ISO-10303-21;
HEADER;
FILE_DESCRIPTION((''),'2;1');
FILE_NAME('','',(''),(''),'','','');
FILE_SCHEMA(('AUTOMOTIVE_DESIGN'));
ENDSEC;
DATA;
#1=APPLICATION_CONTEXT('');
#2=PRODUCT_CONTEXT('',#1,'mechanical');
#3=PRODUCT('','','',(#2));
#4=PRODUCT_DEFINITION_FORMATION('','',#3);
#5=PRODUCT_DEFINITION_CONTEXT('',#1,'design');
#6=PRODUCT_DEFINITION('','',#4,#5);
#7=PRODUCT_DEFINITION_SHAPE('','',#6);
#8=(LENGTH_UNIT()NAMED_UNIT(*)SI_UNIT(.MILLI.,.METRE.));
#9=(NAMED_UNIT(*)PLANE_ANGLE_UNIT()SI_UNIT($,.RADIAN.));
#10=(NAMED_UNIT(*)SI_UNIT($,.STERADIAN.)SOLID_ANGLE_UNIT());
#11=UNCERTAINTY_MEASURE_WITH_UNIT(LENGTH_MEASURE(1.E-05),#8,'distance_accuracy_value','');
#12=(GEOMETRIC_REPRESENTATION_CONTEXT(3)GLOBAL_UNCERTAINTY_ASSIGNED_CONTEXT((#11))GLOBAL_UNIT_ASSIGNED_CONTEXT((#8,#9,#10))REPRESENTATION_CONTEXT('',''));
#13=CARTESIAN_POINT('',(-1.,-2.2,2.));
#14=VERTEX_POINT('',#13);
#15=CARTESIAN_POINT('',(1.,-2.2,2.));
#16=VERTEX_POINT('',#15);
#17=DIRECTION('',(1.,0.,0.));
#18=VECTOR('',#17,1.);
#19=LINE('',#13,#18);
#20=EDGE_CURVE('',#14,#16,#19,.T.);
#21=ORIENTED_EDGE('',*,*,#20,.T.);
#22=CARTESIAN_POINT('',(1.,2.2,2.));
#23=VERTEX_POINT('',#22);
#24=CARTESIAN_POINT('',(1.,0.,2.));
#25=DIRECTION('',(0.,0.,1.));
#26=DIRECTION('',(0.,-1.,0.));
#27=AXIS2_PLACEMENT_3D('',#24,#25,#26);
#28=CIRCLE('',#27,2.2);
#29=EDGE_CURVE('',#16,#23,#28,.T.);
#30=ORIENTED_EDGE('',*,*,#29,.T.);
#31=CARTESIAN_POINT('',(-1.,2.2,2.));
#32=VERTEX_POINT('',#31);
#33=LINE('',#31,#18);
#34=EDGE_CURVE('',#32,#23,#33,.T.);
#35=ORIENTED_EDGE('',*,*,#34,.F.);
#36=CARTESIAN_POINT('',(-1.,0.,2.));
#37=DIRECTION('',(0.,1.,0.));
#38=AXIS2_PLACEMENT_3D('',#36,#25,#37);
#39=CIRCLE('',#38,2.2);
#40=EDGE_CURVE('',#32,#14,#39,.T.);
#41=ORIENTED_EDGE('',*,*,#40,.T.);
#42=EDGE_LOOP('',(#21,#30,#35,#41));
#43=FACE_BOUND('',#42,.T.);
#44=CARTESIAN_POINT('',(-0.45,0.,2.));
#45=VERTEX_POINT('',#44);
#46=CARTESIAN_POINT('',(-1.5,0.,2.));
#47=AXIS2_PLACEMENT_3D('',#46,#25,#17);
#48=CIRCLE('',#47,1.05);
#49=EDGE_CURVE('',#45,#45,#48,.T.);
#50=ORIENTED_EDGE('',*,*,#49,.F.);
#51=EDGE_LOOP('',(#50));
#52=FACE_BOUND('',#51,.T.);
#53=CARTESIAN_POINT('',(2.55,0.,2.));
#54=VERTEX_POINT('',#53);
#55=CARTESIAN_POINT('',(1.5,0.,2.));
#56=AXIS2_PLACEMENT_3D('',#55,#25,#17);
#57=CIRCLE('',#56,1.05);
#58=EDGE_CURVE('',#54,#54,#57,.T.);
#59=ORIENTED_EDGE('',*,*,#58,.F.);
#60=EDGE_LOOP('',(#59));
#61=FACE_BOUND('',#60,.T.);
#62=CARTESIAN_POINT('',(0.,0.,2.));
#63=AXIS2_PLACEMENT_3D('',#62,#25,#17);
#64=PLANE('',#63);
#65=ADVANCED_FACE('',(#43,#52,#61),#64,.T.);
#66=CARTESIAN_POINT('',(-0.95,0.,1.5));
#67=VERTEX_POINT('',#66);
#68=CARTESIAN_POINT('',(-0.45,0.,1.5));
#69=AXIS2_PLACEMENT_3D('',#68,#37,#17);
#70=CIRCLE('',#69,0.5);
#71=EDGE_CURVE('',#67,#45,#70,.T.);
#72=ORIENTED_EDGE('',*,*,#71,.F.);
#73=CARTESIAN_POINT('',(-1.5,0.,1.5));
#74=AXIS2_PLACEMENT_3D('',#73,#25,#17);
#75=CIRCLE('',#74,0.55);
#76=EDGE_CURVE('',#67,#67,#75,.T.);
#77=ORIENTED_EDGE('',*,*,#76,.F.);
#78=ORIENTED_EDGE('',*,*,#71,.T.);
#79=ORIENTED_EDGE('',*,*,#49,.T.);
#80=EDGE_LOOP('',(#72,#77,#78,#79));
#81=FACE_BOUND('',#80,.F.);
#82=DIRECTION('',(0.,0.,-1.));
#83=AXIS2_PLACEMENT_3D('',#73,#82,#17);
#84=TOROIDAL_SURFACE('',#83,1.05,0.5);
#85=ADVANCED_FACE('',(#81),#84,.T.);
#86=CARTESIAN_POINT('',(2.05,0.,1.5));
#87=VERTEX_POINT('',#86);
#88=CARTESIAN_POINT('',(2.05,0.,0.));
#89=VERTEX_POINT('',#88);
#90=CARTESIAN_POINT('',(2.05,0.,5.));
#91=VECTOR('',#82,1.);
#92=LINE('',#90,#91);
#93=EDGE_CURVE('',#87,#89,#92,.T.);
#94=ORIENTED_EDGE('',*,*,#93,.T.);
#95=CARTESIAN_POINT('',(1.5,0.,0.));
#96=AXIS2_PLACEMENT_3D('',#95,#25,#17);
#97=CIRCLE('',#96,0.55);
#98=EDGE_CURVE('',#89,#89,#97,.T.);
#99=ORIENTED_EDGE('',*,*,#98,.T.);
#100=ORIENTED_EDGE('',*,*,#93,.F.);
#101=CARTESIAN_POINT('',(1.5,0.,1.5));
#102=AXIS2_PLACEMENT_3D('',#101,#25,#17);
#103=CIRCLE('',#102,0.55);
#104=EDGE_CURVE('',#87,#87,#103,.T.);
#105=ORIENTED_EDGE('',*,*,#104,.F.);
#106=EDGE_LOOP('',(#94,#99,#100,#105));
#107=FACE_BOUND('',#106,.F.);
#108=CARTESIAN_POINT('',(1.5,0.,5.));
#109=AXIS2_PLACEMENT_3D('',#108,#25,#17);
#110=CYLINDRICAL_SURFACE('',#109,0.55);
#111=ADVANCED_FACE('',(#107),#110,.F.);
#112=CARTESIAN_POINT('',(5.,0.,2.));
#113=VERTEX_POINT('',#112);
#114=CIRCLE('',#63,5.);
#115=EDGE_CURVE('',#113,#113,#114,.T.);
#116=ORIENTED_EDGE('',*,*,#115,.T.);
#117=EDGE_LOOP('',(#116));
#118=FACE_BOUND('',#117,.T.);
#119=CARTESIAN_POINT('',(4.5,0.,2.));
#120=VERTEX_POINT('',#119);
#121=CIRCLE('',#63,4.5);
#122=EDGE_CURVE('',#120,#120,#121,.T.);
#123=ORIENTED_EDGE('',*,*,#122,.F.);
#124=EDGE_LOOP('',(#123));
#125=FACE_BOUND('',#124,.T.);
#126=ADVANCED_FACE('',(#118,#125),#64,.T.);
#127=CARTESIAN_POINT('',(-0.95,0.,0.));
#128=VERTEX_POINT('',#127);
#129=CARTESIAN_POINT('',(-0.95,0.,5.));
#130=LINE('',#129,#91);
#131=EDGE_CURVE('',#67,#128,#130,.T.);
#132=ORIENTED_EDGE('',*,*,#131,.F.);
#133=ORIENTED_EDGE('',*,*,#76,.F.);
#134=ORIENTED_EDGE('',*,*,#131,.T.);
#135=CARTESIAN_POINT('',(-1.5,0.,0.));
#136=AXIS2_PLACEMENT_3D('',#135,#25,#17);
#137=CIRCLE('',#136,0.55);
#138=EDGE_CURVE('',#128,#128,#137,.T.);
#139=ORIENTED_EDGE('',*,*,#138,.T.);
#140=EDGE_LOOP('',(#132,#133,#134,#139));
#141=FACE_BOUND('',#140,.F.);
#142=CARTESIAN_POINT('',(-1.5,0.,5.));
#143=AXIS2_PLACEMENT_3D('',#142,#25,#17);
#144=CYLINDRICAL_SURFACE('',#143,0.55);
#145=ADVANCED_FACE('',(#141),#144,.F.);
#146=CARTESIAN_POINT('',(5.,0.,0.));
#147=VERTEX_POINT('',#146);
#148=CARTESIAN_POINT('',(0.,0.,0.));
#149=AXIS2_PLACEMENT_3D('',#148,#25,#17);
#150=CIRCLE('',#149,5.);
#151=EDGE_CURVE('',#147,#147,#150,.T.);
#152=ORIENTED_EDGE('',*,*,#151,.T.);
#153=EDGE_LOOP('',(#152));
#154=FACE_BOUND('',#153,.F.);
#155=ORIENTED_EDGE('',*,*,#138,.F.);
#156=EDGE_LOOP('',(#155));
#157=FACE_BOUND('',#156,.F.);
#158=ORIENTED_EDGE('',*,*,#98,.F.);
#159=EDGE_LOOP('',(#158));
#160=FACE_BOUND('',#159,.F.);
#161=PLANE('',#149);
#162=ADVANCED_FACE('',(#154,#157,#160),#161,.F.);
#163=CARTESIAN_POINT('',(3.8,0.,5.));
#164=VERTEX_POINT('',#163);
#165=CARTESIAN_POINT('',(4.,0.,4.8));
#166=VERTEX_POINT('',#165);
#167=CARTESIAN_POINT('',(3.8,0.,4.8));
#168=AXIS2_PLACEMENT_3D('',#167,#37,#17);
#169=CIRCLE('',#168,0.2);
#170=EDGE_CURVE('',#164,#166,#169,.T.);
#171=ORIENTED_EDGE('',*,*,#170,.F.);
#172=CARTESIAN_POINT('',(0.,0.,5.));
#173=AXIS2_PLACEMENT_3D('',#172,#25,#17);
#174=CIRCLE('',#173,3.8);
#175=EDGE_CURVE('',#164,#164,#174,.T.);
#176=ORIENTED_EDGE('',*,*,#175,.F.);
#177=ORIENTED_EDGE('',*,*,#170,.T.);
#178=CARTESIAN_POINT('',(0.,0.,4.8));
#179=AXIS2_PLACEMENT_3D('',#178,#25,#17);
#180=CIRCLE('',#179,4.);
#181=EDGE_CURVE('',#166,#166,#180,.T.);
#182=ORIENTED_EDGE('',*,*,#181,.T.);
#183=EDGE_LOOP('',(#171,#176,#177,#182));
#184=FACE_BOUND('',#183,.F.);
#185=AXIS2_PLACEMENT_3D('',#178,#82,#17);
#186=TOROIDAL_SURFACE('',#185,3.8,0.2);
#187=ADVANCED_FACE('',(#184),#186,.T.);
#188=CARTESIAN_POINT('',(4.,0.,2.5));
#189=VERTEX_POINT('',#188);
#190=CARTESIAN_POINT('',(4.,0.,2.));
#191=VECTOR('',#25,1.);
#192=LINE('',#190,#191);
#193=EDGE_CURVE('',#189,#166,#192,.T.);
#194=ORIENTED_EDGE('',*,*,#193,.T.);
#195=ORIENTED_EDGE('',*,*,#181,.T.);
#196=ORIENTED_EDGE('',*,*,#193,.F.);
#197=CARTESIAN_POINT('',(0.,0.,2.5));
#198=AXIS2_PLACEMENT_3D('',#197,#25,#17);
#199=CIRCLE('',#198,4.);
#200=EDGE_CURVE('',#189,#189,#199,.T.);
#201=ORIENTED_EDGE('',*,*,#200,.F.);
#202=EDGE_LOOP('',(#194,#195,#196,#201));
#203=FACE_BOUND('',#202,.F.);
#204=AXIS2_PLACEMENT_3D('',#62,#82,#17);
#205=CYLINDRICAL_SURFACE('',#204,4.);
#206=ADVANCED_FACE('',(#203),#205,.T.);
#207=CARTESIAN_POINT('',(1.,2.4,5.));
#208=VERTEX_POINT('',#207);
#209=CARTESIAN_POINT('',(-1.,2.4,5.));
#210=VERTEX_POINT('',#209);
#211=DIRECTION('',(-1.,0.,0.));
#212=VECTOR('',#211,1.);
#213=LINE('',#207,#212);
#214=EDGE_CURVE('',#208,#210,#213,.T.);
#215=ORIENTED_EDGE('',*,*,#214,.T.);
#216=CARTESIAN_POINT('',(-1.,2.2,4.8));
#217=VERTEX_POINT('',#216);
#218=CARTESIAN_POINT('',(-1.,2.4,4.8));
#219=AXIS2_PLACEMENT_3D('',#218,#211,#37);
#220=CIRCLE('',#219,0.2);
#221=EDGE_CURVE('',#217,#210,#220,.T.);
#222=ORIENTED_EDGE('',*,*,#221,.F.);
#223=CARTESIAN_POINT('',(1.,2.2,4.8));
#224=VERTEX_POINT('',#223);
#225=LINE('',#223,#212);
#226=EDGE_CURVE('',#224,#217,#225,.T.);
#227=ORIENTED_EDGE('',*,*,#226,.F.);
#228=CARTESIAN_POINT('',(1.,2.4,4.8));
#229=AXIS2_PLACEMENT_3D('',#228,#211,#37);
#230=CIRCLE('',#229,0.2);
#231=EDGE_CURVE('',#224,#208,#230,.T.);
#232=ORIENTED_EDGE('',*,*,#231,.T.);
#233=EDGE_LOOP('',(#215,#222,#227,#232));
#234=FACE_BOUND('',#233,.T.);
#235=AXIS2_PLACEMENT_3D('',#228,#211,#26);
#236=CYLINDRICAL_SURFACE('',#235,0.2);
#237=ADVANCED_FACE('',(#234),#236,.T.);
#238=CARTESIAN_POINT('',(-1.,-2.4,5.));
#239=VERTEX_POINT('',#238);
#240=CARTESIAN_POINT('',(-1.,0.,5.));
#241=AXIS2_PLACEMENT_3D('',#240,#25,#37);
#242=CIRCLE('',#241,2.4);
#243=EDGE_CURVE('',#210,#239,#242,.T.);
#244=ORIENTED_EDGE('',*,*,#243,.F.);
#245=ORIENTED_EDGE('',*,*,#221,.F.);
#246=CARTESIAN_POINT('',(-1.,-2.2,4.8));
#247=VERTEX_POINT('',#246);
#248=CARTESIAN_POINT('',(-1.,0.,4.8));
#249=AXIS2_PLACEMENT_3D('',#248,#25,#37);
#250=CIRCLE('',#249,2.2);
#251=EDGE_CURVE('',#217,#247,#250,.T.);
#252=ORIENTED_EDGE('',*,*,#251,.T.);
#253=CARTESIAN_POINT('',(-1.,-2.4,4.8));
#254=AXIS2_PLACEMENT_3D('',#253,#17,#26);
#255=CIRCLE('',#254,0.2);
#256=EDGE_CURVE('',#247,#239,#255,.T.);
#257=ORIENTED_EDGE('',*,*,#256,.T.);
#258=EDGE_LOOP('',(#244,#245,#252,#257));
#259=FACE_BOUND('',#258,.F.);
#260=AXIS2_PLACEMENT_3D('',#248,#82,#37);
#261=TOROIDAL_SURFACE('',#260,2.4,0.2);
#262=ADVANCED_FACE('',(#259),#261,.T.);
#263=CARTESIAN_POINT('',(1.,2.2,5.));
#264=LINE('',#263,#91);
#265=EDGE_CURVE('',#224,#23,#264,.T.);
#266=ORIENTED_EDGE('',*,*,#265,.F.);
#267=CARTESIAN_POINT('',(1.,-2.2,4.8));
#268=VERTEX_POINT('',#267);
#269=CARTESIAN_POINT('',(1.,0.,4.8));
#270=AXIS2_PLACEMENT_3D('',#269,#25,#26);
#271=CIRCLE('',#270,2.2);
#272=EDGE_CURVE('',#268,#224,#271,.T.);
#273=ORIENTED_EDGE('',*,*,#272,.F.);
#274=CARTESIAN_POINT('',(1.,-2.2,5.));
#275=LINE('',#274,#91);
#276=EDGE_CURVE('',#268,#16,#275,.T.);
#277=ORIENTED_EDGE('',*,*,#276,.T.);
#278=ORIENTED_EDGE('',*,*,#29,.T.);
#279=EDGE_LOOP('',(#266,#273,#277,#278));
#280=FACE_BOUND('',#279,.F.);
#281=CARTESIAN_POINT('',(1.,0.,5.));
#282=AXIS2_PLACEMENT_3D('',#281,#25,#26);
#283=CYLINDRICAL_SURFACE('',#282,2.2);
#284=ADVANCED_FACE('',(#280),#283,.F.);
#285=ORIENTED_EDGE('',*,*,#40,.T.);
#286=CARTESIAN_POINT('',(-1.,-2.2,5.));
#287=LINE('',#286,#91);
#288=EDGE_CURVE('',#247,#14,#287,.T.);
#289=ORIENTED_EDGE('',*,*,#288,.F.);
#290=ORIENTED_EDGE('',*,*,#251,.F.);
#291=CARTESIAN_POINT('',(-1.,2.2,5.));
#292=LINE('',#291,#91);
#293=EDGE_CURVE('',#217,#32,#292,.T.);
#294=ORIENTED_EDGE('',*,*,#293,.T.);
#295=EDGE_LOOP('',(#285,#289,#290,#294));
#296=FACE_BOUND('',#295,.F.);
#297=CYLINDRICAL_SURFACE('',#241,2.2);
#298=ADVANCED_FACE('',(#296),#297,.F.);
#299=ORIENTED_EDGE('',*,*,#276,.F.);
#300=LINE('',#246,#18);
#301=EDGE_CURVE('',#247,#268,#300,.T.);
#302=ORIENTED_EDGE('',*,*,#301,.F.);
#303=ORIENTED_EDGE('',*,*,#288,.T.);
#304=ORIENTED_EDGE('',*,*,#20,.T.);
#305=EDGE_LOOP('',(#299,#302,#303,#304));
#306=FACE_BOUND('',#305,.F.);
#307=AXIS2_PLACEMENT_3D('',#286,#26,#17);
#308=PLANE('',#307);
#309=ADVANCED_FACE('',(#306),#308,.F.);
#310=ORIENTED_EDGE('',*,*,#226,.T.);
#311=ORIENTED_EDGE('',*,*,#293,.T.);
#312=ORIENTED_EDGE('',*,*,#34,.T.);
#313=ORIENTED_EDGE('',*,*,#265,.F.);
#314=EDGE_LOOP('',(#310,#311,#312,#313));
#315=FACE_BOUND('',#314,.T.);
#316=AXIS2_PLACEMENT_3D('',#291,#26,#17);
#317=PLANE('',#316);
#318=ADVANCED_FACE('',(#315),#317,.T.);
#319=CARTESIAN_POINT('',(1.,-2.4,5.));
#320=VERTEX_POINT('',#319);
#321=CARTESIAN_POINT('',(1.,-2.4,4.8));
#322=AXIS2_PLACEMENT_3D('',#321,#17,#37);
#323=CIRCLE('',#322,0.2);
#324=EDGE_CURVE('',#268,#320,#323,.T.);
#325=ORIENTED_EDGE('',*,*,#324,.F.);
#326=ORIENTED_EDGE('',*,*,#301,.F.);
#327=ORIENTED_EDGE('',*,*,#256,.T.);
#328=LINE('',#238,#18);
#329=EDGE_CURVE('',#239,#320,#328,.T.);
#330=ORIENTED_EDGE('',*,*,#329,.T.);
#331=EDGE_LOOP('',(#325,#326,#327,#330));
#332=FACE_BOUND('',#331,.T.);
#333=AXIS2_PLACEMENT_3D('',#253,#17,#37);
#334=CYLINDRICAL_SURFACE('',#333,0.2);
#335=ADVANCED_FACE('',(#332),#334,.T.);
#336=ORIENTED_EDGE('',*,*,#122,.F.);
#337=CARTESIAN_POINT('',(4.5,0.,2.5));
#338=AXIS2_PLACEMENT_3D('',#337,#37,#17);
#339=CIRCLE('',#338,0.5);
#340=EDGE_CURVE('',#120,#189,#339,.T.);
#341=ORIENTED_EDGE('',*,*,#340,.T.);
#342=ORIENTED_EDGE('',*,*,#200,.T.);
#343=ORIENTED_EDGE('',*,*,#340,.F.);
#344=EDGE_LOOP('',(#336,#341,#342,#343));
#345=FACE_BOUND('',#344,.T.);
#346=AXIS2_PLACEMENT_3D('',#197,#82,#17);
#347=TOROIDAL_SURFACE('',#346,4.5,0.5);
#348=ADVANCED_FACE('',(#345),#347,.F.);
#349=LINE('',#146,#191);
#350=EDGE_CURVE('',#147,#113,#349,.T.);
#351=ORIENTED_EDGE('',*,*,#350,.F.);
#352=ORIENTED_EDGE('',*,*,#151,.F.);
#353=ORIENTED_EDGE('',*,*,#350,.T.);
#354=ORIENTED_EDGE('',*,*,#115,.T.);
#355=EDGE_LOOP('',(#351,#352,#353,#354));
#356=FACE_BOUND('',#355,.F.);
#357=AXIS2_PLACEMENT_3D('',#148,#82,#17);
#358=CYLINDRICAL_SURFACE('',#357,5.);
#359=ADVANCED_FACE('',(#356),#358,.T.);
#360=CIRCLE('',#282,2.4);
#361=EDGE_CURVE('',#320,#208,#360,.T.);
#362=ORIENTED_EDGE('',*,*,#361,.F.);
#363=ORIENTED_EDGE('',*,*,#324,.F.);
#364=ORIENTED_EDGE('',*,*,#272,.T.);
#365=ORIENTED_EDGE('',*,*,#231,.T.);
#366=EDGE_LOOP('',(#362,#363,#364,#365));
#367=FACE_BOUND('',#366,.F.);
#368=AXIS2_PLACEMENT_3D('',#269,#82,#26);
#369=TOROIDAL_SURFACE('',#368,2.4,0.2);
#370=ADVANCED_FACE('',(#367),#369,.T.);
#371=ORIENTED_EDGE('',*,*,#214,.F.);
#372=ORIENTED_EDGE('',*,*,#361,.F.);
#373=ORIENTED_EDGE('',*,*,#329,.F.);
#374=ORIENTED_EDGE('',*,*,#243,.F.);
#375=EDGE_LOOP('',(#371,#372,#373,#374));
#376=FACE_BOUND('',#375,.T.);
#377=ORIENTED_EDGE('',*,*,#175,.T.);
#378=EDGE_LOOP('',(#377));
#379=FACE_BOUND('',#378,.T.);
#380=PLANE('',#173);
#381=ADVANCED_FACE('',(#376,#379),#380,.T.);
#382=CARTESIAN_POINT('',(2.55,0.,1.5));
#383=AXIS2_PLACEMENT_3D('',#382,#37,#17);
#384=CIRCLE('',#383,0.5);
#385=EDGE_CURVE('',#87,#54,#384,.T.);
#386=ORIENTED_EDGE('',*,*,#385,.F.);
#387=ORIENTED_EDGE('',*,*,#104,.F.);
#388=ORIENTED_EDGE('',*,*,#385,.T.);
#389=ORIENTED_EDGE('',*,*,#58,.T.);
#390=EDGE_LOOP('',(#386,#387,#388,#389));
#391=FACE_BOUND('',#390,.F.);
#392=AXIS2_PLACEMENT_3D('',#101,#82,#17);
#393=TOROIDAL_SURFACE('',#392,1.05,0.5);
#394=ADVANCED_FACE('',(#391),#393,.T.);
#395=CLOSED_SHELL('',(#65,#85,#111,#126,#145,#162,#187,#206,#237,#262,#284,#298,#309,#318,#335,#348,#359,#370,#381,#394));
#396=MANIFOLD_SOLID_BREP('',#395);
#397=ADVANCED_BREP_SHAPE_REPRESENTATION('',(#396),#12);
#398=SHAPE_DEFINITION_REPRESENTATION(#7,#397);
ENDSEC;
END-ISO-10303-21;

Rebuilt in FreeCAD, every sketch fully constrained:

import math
import FreeCAD as App
import Part
import Sketcher


def edges_at(feature, points):
    """Names of the edges that pass closest to the given points."""
    edges = feature.Shape.Edges
    near = lambda p: min(range(len(edges)), key=lambda i: edges[i].distToShape(Part.Vertex(*p))[0])
    return sorted({f"Edge{near(p) + 1}" for p in points})

doc = App.newDocument("Part")
body = doc.addObject("PartDesign::Body", "Body")

# Sketch on XY plane
sketch1 = body.newObject("Sketcher::SketchObject", "Sketch")
sketch1.AttachmentSupport = (doc.getObject("XY_Plane"), [""])
sketch1.MapMode = "FlatFace"
sketch1.addGeometry(Part.Circle(App.Vector(0, 0, 0), App.Vector(0, 0, 1), 5), False)
sketch1.addConstraint([
    Sketcher.Constraint("Coincident", 0, 3, -1, 1),
    Sketcher.Constraint("Diameter", 0, 10.0),
])
pad1 = body.newObject("PartDesign::Pad", "Pad")
pad1.Profile = sketch1
pad1.Length = 2

# Sketch on XY plane
sketch2 = body.newObject("Sketcher::SketchObject", "Sketch001")
sketch2.AttachmentSupport = (doc.getObject("XY_Plane"), [""])
sketch2.MapMode = "FlatFace"
sketch2.AttachmentOffset = App.Placement(App.Vector(0, 0, 2), App.Rotation())
sketch2.addGeometry(Part.Circle(App.Vector(0, 0, 0), App.Vector(0, 0, 1), 4), False)
sketch2.addConstraint([
    Sketcher.Constraint("Coincident", 0, 3, -1, 1),
    Sketcher.Constraint("Diameter", 0, 8.0),
])
pad2 = body.newObject("PartDesign::Pad", "Pad001")
pad2.Profile = sketch2
pad2.Length = 3

# Sketch on XY plane
sketch3 = body.newObject("Sketcher::SketchObject", "Sketch002")
sketch3.AttachmentSupport = (doc.getObject("XY_Plane"), [""])
sketch3.MapMode = "FlatFace"
sketch3.AttachmentOffset = App.Placement(App.Vector(0, 0, 5), App.Rotation())
sketch3.addGeometry([
    Part.ArcOfCircle(Part.Circle(App.Vector(-1, 0, 0), App.Vector(0, 0, 1), 2.2), math.radians(90), math.radians(270)),
    Part.LineSegment(App.Vector(-1, -2.2, 0), App.Vector(1, -2.2, 0)),
    Part.ArcOfCircle(Part.Circle(App.Vector(1, 0, 0), App.Vector(0, 0, 1), 2.2), math.radians(-90), math.radians(90)),
    Part.LineSegment(App.Vector(1, 2.2, 0), App.Vector(-1, 2.2, 0)),
], False)
sketch3.addConstraint([
    Sketcher.Constraint("Tangent", 0, 2, 1, 1),
    Sketcher.Constraint("Tangent", 1, 2, 2, 1),
    Sketcher.Constraint("Tangent", 2, 2, 3, 1),
    Sketcher.Constraint("Tangent", 3, 2, 0, 1),
    Sketcher.Constraint("Horizontal", 1),
    Sketcher.Constraint("Horizontal", 3),
    Sketcher.Constraint("Symmetric", 0, 3, 2, 3, -1, 1),
    Sketcher.Constraint("Radius", 0, 2.2),
    Sketcher.Constraint("DistanceX", 1, 1, 1, 2, 2.0),
])
pocket1 = body.newObject("PartDesign::Pocket", "Pocket")
pocket1.Profile = sketch3
pocket1.Length = 3

# Sketch on XY plane
sketch4 = body.newObject("Sketcher::SketchObject", "Sketch003")
sketch4.AttachmentSupport = (doc.getObject("XY_Plane"), [""])
sketch4.MapMode = "FlatFace"
sketch4.AttachmentOffset = App.Placement(App.Vector(0, 0, 5), App.Rotation())
sketch4.addGeometry([
    Part.Circle(App.Vector(-1.5, 0, 0), App.Vector(0, 0, 1), 0.6),
    Part.Circle(App.Vector(1.5, 0, 0), App.Vector(0, 0, 1), 0.6),
], False)
sketch4.addConstraint([
    Sketcher.Constraint("Equal", 0, 1),
    Sketcher.Constraint("Symmetric", 0, 3, 1, 3, -1, 1),
    Sketcher.Constraint("PointOnObject", 0, 3, -1),
    Sketcher.Constraint("Diameter", 0, 1.1),
    Sketcher.Constraint("DistanceX", 0, 3, 1, 3, 3.0),
])
pocket2 = body.newObject("PartDesign::Pocket", "Pocket001")
pocket2.Profile = sketch4
pocket2.Type = "ThroughAll"
doc.recompute()

fillet = body.newObject("PartDesign::Fillet", "Fillet")
fillet.Base = (pocket2, edges_at(pocket2, [(-4, 0, 2)]))
fillet.Radius = 0.5
doc.recompute()

fillet2 = body.newObject("PartDesign::Fillet", "Fillet001")
fillet2.Base = (fillet, edges_at(fillet, [(-2.05, 0, 2), (0.95, 0, 2)]))
fillet2.Radius = 0.5
doc.recompute()

fillet3 = body.newObject("PartDesign::Fillet", "Fillet002")
fillet3.Base = (fillet2, edges_at(fillet2, [
    (-4, 0, 5),
    (-3.2, 0, 5),
    (0, -2.2, 5),
    (3.2, 0, 5),
    (0, 2.2, 5),
]))
fillet3.Radius = 0.2

doc.recompute()
